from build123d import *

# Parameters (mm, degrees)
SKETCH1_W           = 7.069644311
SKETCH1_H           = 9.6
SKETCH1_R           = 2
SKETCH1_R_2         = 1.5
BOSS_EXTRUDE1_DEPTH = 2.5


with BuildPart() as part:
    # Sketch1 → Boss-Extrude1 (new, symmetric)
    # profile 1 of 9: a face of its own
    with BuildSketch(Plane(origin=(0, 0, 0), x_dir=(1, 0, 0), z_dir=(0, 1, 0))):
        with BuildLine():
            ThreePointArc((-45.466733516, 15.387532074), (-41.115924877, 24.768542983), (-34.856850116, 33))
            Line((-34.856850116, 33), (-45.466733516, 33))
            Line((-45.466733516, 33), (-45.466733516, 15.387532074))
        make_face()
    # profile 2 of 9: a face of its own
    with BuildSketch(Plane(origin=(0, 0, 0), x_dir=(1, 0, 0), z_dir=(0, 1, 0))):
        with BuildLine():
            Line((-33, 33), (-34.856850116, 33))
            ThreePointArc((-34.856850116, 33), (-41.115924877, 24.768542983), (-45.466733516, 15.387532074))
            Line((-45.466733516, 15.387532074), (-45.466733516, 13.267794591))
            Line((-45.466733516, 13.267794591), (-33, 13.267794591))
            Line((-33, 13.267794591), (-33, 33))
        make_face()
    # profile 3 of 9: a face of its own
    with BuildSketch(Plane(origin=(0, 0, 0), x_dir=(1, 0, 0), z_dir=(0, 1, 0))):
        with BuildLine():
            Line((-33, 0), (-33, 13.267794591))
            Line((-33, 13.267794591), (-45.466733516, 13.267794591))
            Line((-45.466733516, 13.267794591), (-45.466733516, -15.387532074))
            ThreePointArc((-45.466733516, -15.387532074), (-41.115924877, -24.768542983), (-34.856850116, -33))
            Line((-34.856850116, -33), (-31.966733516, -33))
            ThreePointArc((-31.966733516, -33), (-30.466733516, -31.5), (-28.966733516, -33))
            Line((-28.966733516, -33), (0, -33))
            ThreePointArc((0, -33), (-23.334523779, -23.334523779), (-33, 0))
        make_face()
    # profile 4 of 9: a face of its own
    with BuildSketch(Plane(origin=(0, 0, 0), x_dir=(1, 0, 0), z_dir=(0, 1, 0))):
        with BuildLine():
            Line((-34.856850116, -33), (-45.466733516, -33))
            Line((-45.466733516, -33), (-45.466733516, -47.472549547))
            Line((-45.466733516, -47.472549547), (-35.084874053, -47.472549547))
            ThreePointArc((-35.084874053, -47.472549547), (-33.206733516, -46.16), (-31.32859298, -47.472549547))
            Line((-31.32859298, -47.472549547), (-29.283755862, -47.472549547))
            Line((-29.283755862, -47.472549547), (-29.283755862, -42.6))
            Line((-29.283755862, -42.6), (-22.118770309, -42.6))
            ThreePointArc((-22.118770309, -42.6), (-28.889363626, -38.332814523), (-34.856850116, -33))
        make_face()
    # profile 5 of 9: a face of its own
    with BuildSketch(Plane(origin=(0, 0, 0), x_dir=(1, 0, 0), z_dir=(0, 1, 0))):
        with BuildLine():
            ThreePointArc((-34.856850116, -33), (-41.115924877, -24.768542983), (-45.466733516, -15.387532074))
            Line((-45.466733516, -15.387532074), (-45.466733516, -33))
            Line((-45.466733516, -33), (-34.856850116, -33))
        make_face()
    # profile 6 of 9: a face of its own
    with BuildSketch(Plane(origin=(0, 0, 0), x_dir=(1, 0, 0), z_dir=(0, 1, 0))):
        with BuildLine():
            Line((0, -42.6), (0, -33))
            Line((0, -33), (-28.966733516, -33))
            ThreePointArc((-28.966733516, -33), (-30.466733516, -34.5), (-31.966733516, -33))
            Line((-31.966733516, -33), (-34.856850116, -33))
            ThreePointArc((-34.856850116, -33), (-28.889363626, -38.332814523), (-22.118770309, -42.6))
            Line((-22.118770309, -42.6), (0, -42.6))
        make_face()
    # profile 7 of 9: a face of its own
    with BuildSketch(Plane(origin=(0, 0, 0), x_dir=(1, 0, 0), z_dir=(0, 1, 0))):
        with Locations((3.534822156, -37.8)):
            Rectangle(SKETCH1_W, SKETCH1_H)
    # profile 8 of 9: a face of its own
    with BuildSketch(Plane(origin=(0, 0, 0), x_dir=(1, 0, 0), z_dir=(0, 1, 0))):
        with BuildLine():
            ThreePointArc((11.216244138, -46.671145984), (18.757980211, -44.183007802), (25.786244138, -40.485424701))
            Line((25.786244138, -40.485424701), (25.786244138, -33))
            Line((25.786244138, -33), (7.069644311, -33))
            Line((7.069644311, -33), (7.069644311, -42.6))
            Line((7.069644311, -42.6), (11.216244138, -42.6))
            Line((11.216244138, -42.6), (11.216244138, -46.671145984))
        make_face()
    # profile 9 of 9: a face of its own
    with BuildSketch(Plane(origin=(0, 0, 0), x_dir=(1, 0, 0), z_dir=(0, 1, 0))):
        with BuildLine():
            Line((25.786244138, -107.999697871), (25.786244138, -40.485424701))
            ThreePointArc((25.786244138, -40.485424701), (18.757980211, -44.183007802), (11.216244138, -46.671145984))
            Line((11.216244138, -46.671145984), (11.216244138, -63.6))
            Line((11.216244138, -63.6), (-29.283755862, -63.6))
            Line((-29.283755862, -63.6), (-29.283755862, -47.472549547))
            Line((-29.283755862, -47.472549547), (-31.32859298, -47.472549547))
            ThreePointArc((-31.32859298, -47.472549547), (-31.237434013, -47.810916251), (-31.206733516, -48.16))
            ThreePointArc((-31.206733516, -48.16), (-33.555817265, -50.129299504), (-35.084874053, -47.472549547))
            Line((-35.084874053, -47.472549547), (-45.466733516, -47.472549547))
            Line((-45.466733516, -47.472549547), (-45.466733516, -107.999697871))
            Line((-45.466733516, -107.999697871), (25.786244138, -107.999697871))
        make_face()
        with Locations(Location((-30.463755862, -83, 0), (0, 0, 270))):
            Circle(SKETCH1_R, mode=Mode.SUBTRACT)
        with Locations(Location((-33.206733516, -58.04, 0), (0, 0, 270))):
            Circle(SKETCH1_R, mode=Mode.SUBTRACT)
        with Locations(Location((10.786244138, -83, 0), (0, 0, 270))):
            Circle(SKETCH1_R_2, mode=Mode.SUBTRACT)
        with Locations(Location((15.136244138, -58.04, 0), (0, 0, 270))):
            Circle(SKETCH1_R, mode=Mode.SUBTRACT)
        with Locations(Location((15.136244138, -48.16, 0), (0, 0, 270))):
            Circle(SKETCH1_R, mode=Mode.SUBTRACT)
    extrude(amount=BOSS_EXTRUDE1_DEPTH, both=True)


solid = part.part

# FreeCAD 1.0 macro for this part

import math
import FreeCAD as App
import Part
import Sketcher

doc = App.newDocument("Part")
params = doc.addObject("Spreadsheet::Sheet", "Params")
for row, (alias, value) in enumerate([
    ("sketch1_diameter", "3 mm"),
    ("sketch1_diameter2", "4 mm"),
    ("sketch1_radius", "33 mm"),
    ("sketch1_height", "33 mm"),
    ("sketch1_height2", "21 mm"),
    ("pad1_length", "5 mm"),
], start=1):
    params.set(f"A{row}", alias)
    params.set(f"B{row}", "=" + value)
    params.setAlias(f"B{row}", alias)

body = doc.addObject("PartDesign::Body", "Body")

# Sketch on XZ plane
sketch1 = body.newObject("Sketcher::SketchObject", "Sketch")
sketch1.AttachmentSupport = (doc.getObject("XZ_Plane"), [""])
sketch1.MapMode = "FlatFace"
sketch1.addGeometry([
    Part.LineSegment(App.Vector(-45.466734, -33, 0), App.Vector(-45.466734, 107.999698, 0)),  # 0
    Part.LineSegment(App.Vector(-45.466734, 107.999698, 0), App.Vector(25.786244, 107.999698, 0)),  # 1
    Part.LineSegment(App.Vector(25.786244, 107.999698, 0), App.Vector(25.786244, 33, 0)),  # 2
    Part.LineSegment(App.Vector(25.786244, 33, 0), App.Vector(0, 33, 0)),  # 3
    Part.ArcOfCircle(Part.Circle(App.Vector(0, 0, 0), App.Vector(0, 0, 1), 33), math.radians(90), math.radians(180)),  # 4
    Part.LineSegment(App.Vector(-33, 0, 0), App.Vector(-33, -33, 0)),  # 5
    Part.LineSegment(App.Vector(-33, -33, 0), App.Vector(-45.466734, -33, 0)),  # 6
    Part.Circle(App.Vector(-30.466734, 33, 0), App.Vector(0, 0, 1), 1.5),  # 7
    Part.LineSegment(App.Vector(11.216244, 42.6, 0), App.Vector(11.216244, 63.6, 0)),  # 8
    Part.LineSegment(App.Vector(11.216244, 63.6, 0), App.Vector(-29.283756, 63.6, 0)),  # 9
    Part.LineSegment(App.Vector(-29.283756, 63.6, 0), App.Vector(-29.283756, 42.6, 0)),  # 10
    Part.LineSegment(App.Vector(-29.283756, 42.6, 0), App.Vector(11.216244, 42.6, 0)),  # 11
    Part.ArcOfCircle(Part.Circle(App.Vector(-33.206734, 48.16, 0), App.Vector(0, 0, 1), 2), math.radians(-159.896002), math.radians(-20.103998)),  # 12
    Part.ArcOfCircle(Part.Circle(App.Vector(-33.206734, 48.16, 0), App.Vector(0, 0, 1), 2), math.radians(-20.103998), math.radians(0)),  # 13
    Part.ArcOfCircle(Part.Circle(App.Vector(-33.206734, 48.16, 0), App.Vector(0, 0, 1), 2), math.radians(0), math.radians(200.103998)),  # 14
    Part.Circle(App.Vector(15.136244, 48.16, 0), App.Vector(0, 0, 1), 2),  # 15
    Part.Circle(App.Vector(15.136244, 58.04, 0), App.Vector(0, 0, 1), 2),  # 16
    Part.Circle(App.Vector(-30.463756, 83, 0), App.Vector(0, 0, 1), 2),  # 17
    Part.Circle(App.Vector(10.786244, 83, 0), App.Vector(0, 0, 1), 1.5),  # 18
    Part.Circle(App.Vector(-33.206734, 58.04, 0), App.Vector(0, 0, 1), 2),  # 19
], False)
sketch1.addConstraint([
    Sketcher.Constraint("Coincident", 0, 2, 1, 1),
    Sketcher.Constraint("Coincident", 1, 2, 2, 1),
    Sketcher.Constraint("Coincident", 2, 2, 3, 1),
    Sketcher.Constraint("Tangent", 3, 2, 4, 1),
    Sketcher.Constraint("Tangent", 4, 2, 5, 1),
    Sketcher.Constraint("Coincident", 5, 2, 6, 1),
    Sketcher.Constraint("Coincident", 6, 2, 0, 1),
    Sketcher.Constraint("Coincident", 8, 2, 9, 1),
    Sketcher.Constraint("Coincident", 9, 2, 10, 1),
    Sketcher.Constraint("Coincident", 10, 2, 11, 1),
    Sketcher.Constraint("Coincident", 11, 2, 8, 1),
    Sketcher.Constraint("Tangent", 12, 2, 13, 1),
    Sketcher.Constraint("Tangent", 13, 2, 14, 1),
    Sketcher.Constraint("Tangent", 14, 2, 12, 1),
    Sketcher.Constraint("Vertical", 0),
    Sketcher.Constraint("Horizontal", 1),
    Sketcher.Constraint("Vertical", 2),
    Sketcher.Constraint("Horizontal", 3),
    Sketcher.Constraint("Vertical", 5),
    Sketcher.Constraint("Horizontal", 6),
    Sketcher.Constraint("Vertical", 8),
    Sketcher.Constraint("Horizontal", 9),
    Sketcher.Constraint("Vertical", 10),
    Sketcher.Constraint("Horizontal", 11),
    Sketcher.Constraint("Coincident", 4, 3, -1, 1),
    Sketcher.Constraint("Equal", 14, 15),
    Sketcher.Constraint("Equal", 15, 16),
    Sketcher.Constraint("Equal", 16, 17),
    Sketcher.Constraint("Equal", 7, 18),
    Sketcher.Constraint("Equal", 17, 19),
    Sketcher.Constraint("Horizontal", 14, 3, 15, 3),
    Sketcher.Constraint("Horizontal", 17, 3, 18, 3),
    Sketcher.Constraint("Horizontal", 16, 3, 19, 3),
    Sketcher.Constraint("Horizontal", 7, 3, 2, 2),
    Sketcher.Constraint("Horizontal", 15, 3, 13, 2),
    Sketcher.Constraint("Horizontal", 12, 2, 14, 2),
    Sketcher.Constraint("Vertical", 15, 3, 16, 3),
    Sketcher.Constraint("Vertical", 14, 3, 19, 3),
    Sketcher.Constraint("Diameter", 7, 3.0),
    Sketcher.Constraint("Diameter", 15, 4.0),
    Sketcher.Constraint("Radius", 4, 33.0),
    Sketcher.Constraint("DistanceY", 5, 2, 5, 1, 33.0),
    Sketcher.Constraint("DistanceY", 8, 1, 8, 2, 21.0),
    Sketcher.Constraint("DistanceX", 9, 2, 9, 1, 40.5),
    Sketcher.Constraint("DistanceY", -1, 1, 17, 3, 83.0),
    Sketcher.Constraint("DistanceX", 18, 3, 1, 2, 15.0),
    Sketcher.Constraint("DistanceX", 6, 2, 7, 3, 15.0),
    Sketcher.Constraint("DistanceY", -1, 1, 8, 2, 63.6),
    Sketcher.Constraint("DistanceX", 17, 3, 16, 3, 45.6),
    Sketcher.Constraint("DistanceY", -1, 1, 12, 3, 48.16),
    Sketcher.Constraint("DistanceY", -1, 1, 16, 3, 58.04),
    Sketcher.Constraint("DistanceX", 12, 3, 7, 3, 2.74),
    Sketcher.Constraint("DistanceX", 18, 3, 16, 3, 4.35),
    Sketcher.Constraint("DistanceX", 8, 2, 16, 3, 3.92),
    Sketcher.Constraint("DistanceX", 1, 1, 1, 2, 71.252978),
    Sketcher.Constraint("DistanceX", 3, 2, 3, 1, 25.786244),
    Sketcher.Constraint("DistanceY", 0, 1, 0, 2, 140.999698),
    Sketcher.Constraint("DistanceY", -1, 1, 12, 2, 47.47255),
])
sketch1.setExpression("Constraints[38]", "Params.sketch1_diameter")
sketch1.setExpression("Constraints[39]", "Params.sketch1_diameter2")
sketch1.setExpression("Constraints[40]", "Params.sketch1_radius")
sketch1.setExpression("Constraints[41]", "Params.sketch1_height")
sketch1.setExpression("Constraints[42]", "Params.sketch1_height2")
pad1 = body.newObject("PartDesign::Pad", "Pad")
pad1.Profile = sketch1
pad1.setExpression("Length", "Params.pad1_length")
pad1.Midplane = True

doc.recompute()
